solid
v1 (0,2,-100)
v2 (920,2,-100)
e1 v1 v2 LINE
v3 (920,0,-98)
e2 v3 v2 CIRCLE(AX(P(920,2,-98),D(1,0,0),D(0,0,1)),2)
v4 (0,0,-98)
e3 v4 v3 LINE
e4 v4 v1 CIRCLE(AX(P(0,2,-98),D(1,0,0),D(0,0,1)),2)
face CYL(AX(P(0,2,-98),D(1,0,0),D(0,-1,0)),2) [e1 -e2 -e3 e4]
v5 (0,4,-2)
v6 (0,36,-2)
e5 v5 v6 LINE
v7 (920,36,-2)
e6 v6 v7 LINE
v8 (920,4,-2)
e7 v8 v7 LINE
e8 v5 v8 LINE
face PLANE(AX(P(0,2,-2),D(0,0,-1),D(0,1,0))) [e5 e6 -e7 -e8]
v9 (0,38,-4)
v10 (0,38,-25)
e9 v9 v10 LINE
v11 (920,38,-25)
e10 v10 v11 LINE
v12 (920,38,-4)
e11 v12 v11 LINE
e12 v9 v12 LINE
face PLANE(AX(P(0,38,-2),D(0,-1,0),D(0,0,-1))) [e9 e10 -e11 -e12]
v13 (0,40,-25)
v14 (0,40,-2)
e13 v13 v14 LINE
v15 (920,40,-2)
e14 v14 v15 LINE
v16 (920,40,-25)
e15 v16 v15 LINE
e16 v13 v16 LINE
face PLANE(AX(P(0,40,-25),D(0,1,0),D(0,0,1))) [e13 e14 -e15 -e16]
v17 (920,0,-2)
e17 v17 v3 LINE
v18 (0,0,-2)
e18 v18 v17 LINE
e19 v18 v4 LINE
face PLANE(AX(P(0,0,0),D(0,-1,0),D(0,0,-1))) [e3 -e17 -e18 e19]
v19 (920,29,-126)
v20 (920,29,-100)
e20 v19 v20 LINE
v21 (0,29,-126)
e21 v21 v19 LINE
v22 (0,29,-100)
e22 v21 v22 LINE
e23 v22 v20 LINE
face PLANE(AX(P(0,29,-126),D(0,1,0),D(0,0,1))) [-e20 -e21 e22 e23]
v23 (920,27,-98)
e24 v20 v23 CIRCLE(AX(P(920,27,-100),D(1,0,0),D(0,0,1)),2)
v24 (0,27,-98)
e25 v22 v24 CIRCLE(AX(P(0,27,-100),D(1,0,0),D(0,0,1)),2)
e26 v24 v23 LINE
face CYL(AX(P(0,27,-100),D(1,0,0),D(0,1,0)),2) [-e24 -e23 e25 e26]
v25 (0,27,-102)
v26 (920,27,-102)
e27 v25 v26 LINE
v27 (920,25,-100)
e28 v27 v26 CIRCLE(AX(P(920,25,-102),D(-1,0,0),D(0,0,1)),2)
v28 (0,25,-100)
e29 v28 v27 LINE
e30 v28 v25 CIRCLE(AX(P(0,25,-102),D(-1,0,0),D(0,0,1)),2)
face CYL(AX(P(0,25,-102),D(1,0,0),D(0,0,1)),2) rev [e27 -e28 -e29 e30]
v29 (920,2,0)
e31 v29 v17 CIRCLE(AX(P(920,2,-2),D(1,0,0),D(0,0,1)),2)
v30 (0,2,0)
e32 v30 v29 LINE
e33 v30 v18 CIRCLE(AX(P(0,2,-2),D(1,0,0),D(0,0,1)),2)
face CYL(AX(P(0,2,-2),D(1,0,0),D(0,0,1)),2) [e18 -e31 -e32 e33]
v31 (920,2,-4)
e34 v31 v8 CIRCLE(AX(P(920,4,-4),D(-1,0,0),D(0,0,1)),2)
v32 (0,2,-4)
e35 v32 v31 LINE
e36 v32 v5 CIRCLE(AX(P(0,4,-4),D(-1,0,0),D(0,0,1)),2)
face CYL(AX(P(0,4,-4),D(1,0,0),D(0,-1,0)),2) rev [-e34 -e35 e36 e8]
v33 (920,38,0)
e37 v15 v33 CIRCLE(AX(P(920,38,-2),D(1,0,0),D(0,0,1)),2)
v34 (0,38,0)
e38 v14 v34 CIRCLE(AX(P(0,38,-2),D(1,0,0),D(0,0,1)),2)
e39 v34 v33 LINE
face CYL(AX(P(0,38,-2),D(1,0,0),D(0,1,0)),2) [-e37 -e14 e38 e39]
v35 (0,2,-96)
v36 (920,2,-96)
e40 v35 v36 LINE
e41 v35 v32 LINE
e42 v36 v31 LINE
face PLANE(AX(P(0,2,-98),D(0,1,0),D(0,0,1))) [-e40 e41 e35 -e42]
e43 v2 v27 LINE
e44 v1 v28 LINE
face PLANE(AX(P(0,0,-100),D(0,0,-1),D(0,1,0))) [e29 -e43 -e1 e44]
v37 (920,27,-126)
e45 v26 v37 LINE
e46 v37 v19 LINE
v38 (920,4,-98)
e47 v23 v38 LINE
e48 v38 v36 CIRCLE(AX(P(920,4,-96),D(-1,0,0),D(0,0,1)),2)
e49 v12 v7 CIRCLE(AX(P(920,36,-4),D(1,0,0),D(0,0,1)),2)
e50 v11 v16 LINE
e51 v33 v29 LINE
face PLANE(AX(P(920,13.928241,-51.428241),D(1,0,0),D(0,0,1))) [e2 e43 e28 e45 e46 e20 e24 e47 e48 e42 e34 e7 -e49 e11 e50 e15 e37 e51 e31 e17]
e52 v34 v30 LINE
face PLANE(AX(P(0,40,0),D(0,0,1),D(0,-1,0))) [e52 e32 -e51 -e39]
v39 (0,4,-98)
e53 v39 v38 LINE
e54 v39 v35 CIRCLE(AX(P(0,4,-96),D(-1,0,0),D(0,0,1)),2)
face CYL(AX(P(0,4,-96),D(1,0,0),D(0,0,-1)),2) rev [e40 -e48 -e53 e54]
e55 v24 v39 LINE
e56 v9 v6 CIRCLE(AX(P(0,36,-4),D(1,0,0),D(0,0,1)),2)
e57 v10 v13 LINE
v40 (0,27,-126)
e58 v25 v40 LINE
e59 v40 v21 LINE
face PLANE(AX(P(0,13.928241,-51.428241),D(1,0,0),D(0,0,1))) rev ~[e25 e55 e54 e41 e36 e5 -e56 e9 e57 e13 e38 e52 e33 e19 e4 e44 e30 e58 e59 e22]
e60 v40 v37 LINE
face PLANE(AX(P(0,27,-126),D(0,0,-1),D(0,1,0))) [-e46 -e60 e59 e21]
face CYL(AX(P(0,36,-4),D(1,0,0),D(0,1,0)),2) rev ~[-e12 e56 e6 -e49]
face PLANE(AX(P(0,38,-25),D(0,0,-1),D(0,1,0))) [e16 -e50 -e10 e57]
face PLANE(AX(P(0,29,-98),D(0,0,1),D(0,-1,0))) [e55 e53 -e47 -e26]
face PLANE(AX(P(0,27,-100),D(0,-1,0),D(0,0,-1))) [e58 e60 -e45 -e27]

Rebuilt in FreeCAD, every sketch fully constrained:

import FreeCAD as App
import Part
import Sketcher


def edges_at(feature, points):
    """Names of the edges that pass closest to the given points."""
    edges = feature.Shape.Edges
    near = lambda p: min(range(len(edges)), key=lambda i: edges[i].distToShape(Part.Vertex(*p))[0])
    return sorted({f"Edge{near(p) + 1}" for p in points})

doc = App.newDocument("Part")
body = doc.addObject("PartDesign::Body", "Body")

# Sketch on YZ plane
sketch1 = doc.addObject("Sketcher::SketchObject", "Sketch")
body.addObject(sketch1)
sketch1.AttachmentSupport = (doc.YZ_Plane, [""])
sketch1.MapMode = "FlatFace"
sketch1.addGeometry([
    Part.LineSegment(App.Vector(38, -2, 0), App.Vector(38, -25, 0)),  # 0
    Part.LineSegment(App.Vector(38, -25, 0), App.Vector(40, -25, 0)),  # 1
    Part.LineSegment(App.Vector(40, -25, 0), App.Vector(40, 0, 0)),  # 2
    Part.LineSegment(App.Vector(40, 0, 0), App.Vector(0, 0, 0)),  # 3
    Part.LineSegment(App.Vector(0, 0, 0), App.Vector(0, -100, 0)),  # 4
    Part.LineSegment(App.Vector(0, -100, 0), App.Vector(27, -100, 0)),  # 5
    Part.LineSegment(App.Vector(27, -100, 0), App.Vector(27, -126, 0)),  # 6
    Part.LineSegment(App.Vector(27, -126, 0), App.Vector(29, -126, 0)),  # 7
    Part.LineSegment(App.Vector(29, -126, 0), App.Vector(29, -98, 0)),  # 8
    Part.LineSegment(App.Vector(29, -98, 0), App.Vector(2, -98, 0)),  # 9
    Part.LineSegment(App.Vector(2, -98, 0), App.Vector(2, -2, 0)),  # 10
    Part.LineSegment(App.Vector(2, -2, 0), App.Vector(38, -2, 0)),  # 11
], False)
sketch1.addConstraint([
    Sketcher.Constraint("Coincident", 0, 2, 1, 1),
    Sketcher.Constraint("Coincident", 1, 2, 2, 1),
    Sketcher.Constraint("Coincident", 2, 2, 3, 1),
    Sketcher.Constraint("Coincident", 3, 2, 4, 1),
    Sketcher.Constraint("Coincident", 4, 2, 5, 1),
    Sketcher.Constraint("Coincident", 5, 2, 6, 1),
    Sketcher.Constraint("Coincident", 6, 2, 7, 1),
    Sketcher.Constraint("Coincident", 7, 2, 8, 1),
    Sketcher.Constraint("Coincident", 8, 2, 9, 1),
    Sketcher.Constraint("Coincident", 9, 2, 10, 1),
    Sketcher.Constraint("Coincident", 10, 2, 11, 1),
    Sketcher.Constraint("Coincident", 11, 2, 0, 1),
    Sketcher.Constraint("Vertical", 0),
    Sketcher.Constraint("Horizontal", 1),
    Sketcher.Constraint("Vertical", 2),
    Sketcher.Constraint("Horizontal", 3),
    Sketcher.Constraint("Vertical", 4),
    Sketcher.Constraint("Horizontal", 5),
    Sketcher.Constraint("Vertical", 6),
    Sketcher.Constraint("Horizontal", 7),
    Sketcher.Constraint("Vertical", 8),
    Sketcher.Constraint("Horizontal", 9),
    Sketcher.Constraint("Vertical", 10),
    Sketcher.Constraint("Horizontal", 11),
    Sketcher.Constraint("Coincident", 3, 2, -1, 1),
    Sketcher.Constraint("Equal", 1, 7),
    Sketcher.Constraint("Equal", 5, 9),
    Sketcher.Constraint("DistanceX", 1, 1, 1, 2, 2.0),
    Sketcher.Constraint("DistanceX", 3, 2, 3, 1, 40.0),
    Sketcher.Constraint("DistanceX", 5, 1, 5, 2, 27.0),
    Sketcher.Constraint("DistanceY", 0, 2, 0, 1, 23.0),
    Sketcher.Constraint("DistanceY", 2, 1, 2, 2, 25.0),
    Sketcher.Constraint("DistanceY", 4, 2, 4, 1, 100.0),
    Sketcher.Constraint("DistanceY", 6, 2, 6, 1, 26.0),
    Sketcher.Constraint("DistanceY", 8, 1, 8, 2, 28.0),
])

# Sketch on XY plane
sketch2 = doc.addObject("Sketcher::SketchObject", "Sketch001")
body.addObject(sketch2)
sketch2.AttachmentSupport = (doc.XY_Plane, [""])
sketch2.MapMode = "FlatFace"
sketch2.addGeometry(Part.LineSegment(App.Vector(0, 0, 0), App.Vector(920, 0, 0)), False)
sketch2.addConstraint([
    Sketcher.Constraint("Horizontal", 0),
    Sketcher.Constraint("Coincident", 0, 1, -1, 1),
    Sketcher.Constraint("DistanceX", 0, 1, 0, 2, 920.0),
])
doc.recompute()

additivepipe = doc.addObject("PartDesign::AdditivePipe", "AdditivePipe")
body.addObject(additivepipe)
additivepipe.Profile = sketch1
additivepipe.Spine = (sketch2, ["Edge1"])
doc.recompute()

fillet = doc.addObject("PartDesign::Fillet", "Fillet")
body.addObject(fillet)
fillet.Base = (additivepipe, edges_at(additivepipe, [
    (460, 40, 0),
    (460, 0, 0),
    (460, 29, -98),
    (460, 2, -98),
    (460, 2, -2),
    (460, 38, -2),
    (460, 0, -100),
    (460, 27, -100),
]))
fillet.Radius = 2

doc.recompute()
